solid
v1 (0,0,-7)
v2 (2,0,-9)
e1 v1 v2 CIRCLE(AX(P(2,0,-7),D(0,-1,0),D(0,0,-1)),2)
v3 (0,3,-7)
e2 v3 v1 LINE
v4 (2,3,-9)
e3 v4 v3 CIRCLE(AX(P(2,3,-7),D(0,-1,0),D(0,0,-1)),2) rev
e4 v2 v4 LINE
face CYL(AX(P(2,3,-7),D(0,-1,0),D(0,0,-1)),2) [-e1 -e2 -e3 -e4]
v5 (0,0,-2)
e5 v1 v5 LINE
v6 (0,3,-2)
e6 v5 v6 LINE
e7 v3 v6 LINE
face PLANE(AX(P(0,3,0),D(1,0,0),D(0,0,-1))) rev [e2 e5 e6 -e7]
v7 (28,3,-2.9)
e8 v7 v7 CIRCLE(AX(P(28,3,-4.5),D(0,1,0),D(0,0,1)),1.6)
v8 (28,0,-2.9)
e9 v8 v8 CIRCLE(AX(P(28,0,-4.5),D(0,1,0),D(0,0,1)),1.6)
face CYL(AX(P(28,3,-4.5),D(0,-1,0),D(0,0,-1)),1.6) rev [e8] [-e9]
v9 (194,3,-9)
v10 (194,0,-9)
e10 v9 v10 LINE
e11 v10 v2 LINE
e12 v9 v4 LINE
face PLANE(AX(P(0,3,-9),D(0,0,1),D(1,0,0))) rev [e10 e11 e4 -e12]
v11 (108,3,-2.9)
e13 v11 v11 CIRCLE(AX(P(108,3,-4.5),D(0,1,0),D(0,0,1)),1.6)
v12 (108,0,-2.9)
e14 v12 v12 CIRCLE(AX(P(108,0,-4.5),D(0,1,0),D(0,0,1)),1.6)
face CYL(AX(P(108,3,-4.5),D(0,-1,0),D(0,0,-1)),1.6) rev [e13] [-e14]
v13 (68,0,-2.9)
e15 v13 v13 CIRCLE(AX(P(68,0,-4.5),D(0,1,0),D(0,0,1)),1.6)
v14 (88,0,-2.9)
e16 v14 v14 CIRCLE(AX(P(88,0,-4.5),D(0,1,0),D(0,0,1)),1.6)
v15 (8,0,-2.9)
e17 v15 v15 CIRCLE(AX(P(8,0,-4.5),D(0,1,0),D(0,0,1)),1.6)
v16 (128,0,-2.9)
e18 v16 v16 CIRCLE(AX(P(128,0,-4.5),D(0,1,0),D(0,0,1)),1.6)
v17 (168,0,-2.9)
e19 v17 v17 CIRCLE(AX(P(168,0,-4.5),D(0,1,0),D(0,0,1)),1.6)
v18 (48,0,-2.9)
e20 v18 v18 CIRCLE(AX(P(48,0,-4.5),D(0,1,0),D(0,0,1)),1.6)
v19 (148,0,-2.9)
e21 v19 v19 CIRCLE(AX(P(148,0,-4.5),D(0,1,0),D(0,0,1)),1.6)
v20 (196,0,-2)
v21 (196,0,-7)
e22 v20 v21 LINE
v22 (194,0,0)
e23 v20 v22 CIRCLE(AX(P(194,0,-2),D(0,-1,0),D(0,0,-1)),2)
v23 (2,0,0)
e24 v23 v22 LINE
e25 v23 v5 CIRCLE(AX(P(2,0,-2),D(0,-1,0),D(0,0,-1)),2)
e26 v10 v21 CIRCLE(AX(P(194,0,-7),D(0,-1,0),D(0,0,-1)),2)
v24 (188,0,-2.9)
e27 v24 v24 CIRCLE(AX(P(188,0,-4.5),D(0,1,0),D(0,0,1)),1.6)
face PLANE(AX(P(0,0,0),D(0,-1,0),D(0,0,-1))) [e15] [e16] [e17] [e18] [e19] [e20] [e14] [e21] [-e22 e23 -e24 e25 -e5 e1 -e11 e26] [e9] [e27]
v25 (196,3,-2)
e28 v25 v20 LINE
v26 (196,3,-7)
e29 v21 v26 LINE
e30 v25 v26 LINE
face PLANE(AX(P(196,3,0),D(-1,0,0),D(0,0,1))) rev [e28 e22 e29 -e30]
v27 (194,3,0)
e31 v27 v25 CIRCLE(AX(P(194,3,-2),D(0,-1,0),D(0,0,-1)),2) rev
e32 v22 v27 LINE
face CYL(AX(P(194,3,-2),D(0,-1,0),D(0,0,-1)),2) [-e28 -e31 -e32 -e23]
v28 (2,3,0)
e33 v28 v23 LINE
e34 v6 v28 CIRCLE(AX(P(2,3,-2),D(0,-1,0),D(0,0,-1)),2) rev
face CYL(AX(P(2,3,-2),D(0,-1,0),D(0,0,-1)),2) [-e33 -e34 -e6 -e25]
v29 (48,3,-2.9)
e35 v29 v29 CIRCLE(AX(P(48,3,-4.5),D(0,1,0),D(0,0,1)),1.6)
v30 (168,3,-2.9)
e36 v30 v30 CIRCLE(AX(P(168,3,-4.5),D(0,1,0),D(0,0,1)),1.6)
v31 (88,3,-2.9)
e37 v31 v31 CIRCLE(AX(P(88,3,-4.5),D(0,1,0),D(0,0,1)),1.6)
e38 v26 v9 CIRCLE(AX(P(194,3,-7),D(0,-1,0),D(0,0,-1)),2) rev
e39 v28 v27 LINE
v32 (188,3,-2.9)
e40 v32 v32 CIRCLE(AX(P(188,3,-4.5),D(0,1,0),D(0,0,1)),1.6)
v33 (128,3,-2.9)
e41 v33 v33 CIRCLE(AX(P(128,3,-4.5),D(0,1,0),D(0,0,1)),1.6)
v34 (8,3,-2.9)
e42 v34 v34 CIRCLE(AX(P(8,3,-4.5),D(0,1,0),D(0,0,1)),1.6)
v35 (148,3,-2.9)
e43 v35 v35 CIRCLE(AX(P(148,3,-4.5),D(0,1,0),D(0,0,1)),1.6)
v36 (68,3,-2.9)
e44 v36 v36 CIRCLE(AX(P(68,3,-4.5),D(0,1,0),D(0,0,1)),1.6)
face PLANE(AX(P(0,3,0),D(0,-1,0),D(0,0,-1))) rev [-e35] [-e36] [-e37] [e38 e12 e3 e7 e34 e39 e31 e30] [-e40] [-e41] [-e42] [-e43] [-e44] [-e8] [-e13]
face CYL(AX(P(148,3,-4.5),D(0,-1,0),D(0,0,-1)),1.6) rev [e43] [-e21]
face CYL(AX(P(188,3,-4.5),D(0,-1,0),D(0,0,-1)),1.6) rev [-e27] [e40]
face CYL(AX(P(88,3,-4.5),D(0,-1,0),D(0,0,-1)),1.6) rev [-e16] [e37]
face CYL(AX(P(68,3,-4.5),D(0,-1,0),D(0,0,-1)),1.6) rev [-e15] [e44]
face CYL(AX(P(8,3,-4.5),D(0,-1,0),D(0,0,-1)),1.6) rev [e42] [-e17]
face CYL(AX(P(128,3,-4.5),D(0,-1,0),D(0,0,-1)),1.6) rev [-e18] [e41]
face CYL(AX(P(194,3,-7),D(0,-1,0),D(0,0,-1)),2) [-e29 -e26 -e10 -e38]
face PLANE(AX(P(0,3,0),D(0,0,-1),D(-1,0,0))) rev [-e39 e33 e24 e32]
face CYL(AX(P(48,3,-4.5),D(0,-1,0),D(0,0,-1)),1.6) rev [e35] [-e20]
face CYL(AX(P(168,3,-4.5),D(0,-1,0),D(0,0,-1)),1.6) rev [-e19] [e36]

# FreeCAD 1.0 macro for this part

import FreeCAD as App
import Part
import Sketcher
from FreeCAD import Vector
Q = App.Units.Quantity


def edges_at(feature, points):
    """Names of the edges that pass closest to the given points."""
    edges = feature.Shape.Edges
    near = lambda p: min(range(len(edges)), key=lambda i: edges[i].distToShape(Part.Vertex(*p))[0])
    return sorted({f"Edge{near(p) + 1}" for p in points})

doc = App.newDocument("Part")
body = doc.addObject("PartDesign::Body", "Body")

sketch1 = body.newObject("Sketcher::SketchObject", "Sketch")
sketch1.AttachmentSupport = (doc.getObject("XZ_Plane"), [""])
sketch1.MapMode = "FlatFace"
sketch1.addGeometry(Part.LineSegment(Vector(0, -9, 0), Vector(0, 0, 0)), False)
sketch1.addGeometry(Part.LineSegment(Vector(0, 0, 0), Vector(196, 0, 0)), False)
sketch1.addGeometry(Part.LineSegment(Vector(196, 0, 0), Vector(196, -9, 0)), False)
sketch1.addGeometry(Part.LineSegment(Vector(196, -9, 0), Vector(0, -9, 0)), False)
sketch1.addGeometry(Part.Circle(Vector(8, -4.5, 0), Vector(0, 0, 1), 1.6), False)
sketch1.addGeometry(Part.Circle(Vector(28, -4.5, 0), Vector(0, 0, 1), 1.6), False)
sketch1.addGeometry(Part.Circle(Vector(48, -4.5, 0), Vector(0, 0, 1), 1.6), False)
sketch1.addGeometry(Part.Circle(Vector(68, -4.5, 0), Vector(0, 0, 1), 1.6), False)
sketch1.addGeometry(Part.Circle(Vector(88, -4.5, 0), Vector(0, 0, 1), 1.6), False)
sketch1.addGeometry(Part.Circle(Vector(108, -4.5, 0), Vector(0, 0, 1), 1.6), False)
sketch1.addGeometry(Part.Circle(Vector(128, -4.5, 0), Vector(0, 0, 1), 1.6), False)
sketch1.addGeometry(Part.Circle(Vector(148, -4.5, 0), Vector(0, 0, 1), 1.6), False)
sketch1.addGeometry(Part.Circle(Vector(168, -4.5, 0), Vector(0, 0, 1), 1.6), False)
sketch1.addGeometry(Part.Circle(Vector(188, -4.5, 0), Vector(0, 0, 1), 1.6), False)
sketch1.addConstraint(Sketcher.Constraint("Coincident", 0, 2, 1, 1))
sketch1.addConstraint(Sketcher.Constraint("Coincident", 1, 2, 2, 1))
sketch1.addConstraint(Sketcher.Constraint("Coincident", 2, 2, 3, 1))
sketch1.addConstraint(Sketcher.Constraint("Coincident", 3, 2, 0, 1))
sketch1.addConstraint(Sketcher.Constraint("Vertical", 0))
sketch1.addConstraint(Sketcher.Constraint("Horizontal", 1))
sketch1.addConstraint(Sketcher.Constraint("Vertical", 2))
sketch1.addConstraint(Sketcher.Constraint("Horizontal", 3))
sketch1.addConstraint(Sketcher.Constraint("Coincident", 0, 2, -1, 1))
sketch1.addConstraint(Sketcher.Constraint("Equal", 4, 5))
sketch1.addConstraint(Sketcher.Constraint("Equal", 5, 6))
sketch1.addConstraint(Sketcher.Constraint("Equal", 6, 7))
sketch1.addConstraint(Sketcher.Constraint("Equal", 7, 8))
sketch1.addConstraint(Sketcher.Constraint("Equal", 8, 9))
sketch1.addConstraint(Sketcher.Constraint("Equal", 9, 10))
sketch1.addConstraint(Sketcher.Constraint("Equal", 10, 11))
sketch1.addConstraint(Sketcher.Constraint("Equal", 11, 12))
sketch1.addConstraint(Sketcher.Constraint("Equal", 12, 13))
sketch1.addConstraint(Sketcher.Constraint("Horizontal", 4, 3, 5, 3))
sketch1.addConstraint(Sketcher.Constraint("Horizontal", 5, 3, 6, 3))
sketch1.addConstraint(Sketcher.Constraint("Horizontal", 6, 3, 7, 3))
sketch1.addConstraint(Sketcher.Constraint("Horizontal", 7, 3, 8, 3))
sketch1.addConstraint(Sketcher.Constraint("Horizontal", 8, 3, 9, 3))
sketch1.addConstraint(Sketcher.Constraint("Horizontal", 9, 3, 10, 3))
sketch1.addConstraint(Sketcher.Constraint("Horizontal", 10, 3, 11, 3))
sketch1.addConstraint(Sketcher.Constraint("Horizontal", 11, 3, 12, 3))
sketch1.addConstraint(Sketcher.Constraint("Horizontal", 12, 3, 13, 3))
sketch1.addConstraint(Sketcher.Constraint("Diameter", 4, Q("3.2 mm")))
sketch1.addConstraint(Sketcher.Constraint("DistanceX", 1, 1, 1, 2, Q("196 mm")))
sketch1.addConstraint(Sketcher.Constraint("DistanceY", 0, 1, 0, 2, Q("9 mm")))
sketch1.addConstraint(Sketcher.Constraint("DistanceX", -1, 1, 4, 3, Q("8 mm")))
sketch1.addConstraint(Sketcher.Constraint("DistanceX", -1, 1, 5, 3, Q("28 mm")))
sketch1.addConstraint(Sketcher.Constraint("DistanceX", -1, 1, 6, 3, Q("48 mm")))
sketch1.addConstraint(Sketcher.Constraint("DistanceX", -1, 1, 7, 3, Q("68 mm")))
sketch1.addConstraint(Sketcher.Constraint("DistanceX", -1, 1, 8, 3, Q("88 mm")))
sketch1.addConstraint(Sketcher.Constraint("DistanceX", -1, 1, 9, 3, Q("108 mm")))
sketch1.addConstraint(Sketcher.Constraint("DistanceX", -1, 1, 10, 3, Q("128 mm")))
sketch1.addConstraint(Sketcher.Constraint("DistanceX", -1, 1, 11, 3, Q("148 mm")))
sketch1.addConstraint(Sketcher.Constraint("DistanceX", -1, 1, 12, 3, Q("168 mm")))
sketch1.addConstraint(Sketcher.Constraint("DistanceX", -1, 1, 13, 3, Q("188 mm")))
sketch1.addConstraint(Sketcher.Constraint("DistanceY", 4, 3, -1, 1, Q("4.5 mm")))
pad1 = body.newObject("PartDesign::Pad", "Pad")
pad1.Profile = sketch1
pad1.Length = 3
pad1.Reversed = True
doc.recompute()

fillet = body.newObject("PartDesign::Fillet", "Fillet")
fillet.Base = (pad1, edges_at(pad1, [
    (0, 1.5, -9),
    (196, 1.5, -9),
    (196, 1.5, 0),
    (0, 1.5, 0),
]))
fillet.Radius = 2

doc.recompute()
